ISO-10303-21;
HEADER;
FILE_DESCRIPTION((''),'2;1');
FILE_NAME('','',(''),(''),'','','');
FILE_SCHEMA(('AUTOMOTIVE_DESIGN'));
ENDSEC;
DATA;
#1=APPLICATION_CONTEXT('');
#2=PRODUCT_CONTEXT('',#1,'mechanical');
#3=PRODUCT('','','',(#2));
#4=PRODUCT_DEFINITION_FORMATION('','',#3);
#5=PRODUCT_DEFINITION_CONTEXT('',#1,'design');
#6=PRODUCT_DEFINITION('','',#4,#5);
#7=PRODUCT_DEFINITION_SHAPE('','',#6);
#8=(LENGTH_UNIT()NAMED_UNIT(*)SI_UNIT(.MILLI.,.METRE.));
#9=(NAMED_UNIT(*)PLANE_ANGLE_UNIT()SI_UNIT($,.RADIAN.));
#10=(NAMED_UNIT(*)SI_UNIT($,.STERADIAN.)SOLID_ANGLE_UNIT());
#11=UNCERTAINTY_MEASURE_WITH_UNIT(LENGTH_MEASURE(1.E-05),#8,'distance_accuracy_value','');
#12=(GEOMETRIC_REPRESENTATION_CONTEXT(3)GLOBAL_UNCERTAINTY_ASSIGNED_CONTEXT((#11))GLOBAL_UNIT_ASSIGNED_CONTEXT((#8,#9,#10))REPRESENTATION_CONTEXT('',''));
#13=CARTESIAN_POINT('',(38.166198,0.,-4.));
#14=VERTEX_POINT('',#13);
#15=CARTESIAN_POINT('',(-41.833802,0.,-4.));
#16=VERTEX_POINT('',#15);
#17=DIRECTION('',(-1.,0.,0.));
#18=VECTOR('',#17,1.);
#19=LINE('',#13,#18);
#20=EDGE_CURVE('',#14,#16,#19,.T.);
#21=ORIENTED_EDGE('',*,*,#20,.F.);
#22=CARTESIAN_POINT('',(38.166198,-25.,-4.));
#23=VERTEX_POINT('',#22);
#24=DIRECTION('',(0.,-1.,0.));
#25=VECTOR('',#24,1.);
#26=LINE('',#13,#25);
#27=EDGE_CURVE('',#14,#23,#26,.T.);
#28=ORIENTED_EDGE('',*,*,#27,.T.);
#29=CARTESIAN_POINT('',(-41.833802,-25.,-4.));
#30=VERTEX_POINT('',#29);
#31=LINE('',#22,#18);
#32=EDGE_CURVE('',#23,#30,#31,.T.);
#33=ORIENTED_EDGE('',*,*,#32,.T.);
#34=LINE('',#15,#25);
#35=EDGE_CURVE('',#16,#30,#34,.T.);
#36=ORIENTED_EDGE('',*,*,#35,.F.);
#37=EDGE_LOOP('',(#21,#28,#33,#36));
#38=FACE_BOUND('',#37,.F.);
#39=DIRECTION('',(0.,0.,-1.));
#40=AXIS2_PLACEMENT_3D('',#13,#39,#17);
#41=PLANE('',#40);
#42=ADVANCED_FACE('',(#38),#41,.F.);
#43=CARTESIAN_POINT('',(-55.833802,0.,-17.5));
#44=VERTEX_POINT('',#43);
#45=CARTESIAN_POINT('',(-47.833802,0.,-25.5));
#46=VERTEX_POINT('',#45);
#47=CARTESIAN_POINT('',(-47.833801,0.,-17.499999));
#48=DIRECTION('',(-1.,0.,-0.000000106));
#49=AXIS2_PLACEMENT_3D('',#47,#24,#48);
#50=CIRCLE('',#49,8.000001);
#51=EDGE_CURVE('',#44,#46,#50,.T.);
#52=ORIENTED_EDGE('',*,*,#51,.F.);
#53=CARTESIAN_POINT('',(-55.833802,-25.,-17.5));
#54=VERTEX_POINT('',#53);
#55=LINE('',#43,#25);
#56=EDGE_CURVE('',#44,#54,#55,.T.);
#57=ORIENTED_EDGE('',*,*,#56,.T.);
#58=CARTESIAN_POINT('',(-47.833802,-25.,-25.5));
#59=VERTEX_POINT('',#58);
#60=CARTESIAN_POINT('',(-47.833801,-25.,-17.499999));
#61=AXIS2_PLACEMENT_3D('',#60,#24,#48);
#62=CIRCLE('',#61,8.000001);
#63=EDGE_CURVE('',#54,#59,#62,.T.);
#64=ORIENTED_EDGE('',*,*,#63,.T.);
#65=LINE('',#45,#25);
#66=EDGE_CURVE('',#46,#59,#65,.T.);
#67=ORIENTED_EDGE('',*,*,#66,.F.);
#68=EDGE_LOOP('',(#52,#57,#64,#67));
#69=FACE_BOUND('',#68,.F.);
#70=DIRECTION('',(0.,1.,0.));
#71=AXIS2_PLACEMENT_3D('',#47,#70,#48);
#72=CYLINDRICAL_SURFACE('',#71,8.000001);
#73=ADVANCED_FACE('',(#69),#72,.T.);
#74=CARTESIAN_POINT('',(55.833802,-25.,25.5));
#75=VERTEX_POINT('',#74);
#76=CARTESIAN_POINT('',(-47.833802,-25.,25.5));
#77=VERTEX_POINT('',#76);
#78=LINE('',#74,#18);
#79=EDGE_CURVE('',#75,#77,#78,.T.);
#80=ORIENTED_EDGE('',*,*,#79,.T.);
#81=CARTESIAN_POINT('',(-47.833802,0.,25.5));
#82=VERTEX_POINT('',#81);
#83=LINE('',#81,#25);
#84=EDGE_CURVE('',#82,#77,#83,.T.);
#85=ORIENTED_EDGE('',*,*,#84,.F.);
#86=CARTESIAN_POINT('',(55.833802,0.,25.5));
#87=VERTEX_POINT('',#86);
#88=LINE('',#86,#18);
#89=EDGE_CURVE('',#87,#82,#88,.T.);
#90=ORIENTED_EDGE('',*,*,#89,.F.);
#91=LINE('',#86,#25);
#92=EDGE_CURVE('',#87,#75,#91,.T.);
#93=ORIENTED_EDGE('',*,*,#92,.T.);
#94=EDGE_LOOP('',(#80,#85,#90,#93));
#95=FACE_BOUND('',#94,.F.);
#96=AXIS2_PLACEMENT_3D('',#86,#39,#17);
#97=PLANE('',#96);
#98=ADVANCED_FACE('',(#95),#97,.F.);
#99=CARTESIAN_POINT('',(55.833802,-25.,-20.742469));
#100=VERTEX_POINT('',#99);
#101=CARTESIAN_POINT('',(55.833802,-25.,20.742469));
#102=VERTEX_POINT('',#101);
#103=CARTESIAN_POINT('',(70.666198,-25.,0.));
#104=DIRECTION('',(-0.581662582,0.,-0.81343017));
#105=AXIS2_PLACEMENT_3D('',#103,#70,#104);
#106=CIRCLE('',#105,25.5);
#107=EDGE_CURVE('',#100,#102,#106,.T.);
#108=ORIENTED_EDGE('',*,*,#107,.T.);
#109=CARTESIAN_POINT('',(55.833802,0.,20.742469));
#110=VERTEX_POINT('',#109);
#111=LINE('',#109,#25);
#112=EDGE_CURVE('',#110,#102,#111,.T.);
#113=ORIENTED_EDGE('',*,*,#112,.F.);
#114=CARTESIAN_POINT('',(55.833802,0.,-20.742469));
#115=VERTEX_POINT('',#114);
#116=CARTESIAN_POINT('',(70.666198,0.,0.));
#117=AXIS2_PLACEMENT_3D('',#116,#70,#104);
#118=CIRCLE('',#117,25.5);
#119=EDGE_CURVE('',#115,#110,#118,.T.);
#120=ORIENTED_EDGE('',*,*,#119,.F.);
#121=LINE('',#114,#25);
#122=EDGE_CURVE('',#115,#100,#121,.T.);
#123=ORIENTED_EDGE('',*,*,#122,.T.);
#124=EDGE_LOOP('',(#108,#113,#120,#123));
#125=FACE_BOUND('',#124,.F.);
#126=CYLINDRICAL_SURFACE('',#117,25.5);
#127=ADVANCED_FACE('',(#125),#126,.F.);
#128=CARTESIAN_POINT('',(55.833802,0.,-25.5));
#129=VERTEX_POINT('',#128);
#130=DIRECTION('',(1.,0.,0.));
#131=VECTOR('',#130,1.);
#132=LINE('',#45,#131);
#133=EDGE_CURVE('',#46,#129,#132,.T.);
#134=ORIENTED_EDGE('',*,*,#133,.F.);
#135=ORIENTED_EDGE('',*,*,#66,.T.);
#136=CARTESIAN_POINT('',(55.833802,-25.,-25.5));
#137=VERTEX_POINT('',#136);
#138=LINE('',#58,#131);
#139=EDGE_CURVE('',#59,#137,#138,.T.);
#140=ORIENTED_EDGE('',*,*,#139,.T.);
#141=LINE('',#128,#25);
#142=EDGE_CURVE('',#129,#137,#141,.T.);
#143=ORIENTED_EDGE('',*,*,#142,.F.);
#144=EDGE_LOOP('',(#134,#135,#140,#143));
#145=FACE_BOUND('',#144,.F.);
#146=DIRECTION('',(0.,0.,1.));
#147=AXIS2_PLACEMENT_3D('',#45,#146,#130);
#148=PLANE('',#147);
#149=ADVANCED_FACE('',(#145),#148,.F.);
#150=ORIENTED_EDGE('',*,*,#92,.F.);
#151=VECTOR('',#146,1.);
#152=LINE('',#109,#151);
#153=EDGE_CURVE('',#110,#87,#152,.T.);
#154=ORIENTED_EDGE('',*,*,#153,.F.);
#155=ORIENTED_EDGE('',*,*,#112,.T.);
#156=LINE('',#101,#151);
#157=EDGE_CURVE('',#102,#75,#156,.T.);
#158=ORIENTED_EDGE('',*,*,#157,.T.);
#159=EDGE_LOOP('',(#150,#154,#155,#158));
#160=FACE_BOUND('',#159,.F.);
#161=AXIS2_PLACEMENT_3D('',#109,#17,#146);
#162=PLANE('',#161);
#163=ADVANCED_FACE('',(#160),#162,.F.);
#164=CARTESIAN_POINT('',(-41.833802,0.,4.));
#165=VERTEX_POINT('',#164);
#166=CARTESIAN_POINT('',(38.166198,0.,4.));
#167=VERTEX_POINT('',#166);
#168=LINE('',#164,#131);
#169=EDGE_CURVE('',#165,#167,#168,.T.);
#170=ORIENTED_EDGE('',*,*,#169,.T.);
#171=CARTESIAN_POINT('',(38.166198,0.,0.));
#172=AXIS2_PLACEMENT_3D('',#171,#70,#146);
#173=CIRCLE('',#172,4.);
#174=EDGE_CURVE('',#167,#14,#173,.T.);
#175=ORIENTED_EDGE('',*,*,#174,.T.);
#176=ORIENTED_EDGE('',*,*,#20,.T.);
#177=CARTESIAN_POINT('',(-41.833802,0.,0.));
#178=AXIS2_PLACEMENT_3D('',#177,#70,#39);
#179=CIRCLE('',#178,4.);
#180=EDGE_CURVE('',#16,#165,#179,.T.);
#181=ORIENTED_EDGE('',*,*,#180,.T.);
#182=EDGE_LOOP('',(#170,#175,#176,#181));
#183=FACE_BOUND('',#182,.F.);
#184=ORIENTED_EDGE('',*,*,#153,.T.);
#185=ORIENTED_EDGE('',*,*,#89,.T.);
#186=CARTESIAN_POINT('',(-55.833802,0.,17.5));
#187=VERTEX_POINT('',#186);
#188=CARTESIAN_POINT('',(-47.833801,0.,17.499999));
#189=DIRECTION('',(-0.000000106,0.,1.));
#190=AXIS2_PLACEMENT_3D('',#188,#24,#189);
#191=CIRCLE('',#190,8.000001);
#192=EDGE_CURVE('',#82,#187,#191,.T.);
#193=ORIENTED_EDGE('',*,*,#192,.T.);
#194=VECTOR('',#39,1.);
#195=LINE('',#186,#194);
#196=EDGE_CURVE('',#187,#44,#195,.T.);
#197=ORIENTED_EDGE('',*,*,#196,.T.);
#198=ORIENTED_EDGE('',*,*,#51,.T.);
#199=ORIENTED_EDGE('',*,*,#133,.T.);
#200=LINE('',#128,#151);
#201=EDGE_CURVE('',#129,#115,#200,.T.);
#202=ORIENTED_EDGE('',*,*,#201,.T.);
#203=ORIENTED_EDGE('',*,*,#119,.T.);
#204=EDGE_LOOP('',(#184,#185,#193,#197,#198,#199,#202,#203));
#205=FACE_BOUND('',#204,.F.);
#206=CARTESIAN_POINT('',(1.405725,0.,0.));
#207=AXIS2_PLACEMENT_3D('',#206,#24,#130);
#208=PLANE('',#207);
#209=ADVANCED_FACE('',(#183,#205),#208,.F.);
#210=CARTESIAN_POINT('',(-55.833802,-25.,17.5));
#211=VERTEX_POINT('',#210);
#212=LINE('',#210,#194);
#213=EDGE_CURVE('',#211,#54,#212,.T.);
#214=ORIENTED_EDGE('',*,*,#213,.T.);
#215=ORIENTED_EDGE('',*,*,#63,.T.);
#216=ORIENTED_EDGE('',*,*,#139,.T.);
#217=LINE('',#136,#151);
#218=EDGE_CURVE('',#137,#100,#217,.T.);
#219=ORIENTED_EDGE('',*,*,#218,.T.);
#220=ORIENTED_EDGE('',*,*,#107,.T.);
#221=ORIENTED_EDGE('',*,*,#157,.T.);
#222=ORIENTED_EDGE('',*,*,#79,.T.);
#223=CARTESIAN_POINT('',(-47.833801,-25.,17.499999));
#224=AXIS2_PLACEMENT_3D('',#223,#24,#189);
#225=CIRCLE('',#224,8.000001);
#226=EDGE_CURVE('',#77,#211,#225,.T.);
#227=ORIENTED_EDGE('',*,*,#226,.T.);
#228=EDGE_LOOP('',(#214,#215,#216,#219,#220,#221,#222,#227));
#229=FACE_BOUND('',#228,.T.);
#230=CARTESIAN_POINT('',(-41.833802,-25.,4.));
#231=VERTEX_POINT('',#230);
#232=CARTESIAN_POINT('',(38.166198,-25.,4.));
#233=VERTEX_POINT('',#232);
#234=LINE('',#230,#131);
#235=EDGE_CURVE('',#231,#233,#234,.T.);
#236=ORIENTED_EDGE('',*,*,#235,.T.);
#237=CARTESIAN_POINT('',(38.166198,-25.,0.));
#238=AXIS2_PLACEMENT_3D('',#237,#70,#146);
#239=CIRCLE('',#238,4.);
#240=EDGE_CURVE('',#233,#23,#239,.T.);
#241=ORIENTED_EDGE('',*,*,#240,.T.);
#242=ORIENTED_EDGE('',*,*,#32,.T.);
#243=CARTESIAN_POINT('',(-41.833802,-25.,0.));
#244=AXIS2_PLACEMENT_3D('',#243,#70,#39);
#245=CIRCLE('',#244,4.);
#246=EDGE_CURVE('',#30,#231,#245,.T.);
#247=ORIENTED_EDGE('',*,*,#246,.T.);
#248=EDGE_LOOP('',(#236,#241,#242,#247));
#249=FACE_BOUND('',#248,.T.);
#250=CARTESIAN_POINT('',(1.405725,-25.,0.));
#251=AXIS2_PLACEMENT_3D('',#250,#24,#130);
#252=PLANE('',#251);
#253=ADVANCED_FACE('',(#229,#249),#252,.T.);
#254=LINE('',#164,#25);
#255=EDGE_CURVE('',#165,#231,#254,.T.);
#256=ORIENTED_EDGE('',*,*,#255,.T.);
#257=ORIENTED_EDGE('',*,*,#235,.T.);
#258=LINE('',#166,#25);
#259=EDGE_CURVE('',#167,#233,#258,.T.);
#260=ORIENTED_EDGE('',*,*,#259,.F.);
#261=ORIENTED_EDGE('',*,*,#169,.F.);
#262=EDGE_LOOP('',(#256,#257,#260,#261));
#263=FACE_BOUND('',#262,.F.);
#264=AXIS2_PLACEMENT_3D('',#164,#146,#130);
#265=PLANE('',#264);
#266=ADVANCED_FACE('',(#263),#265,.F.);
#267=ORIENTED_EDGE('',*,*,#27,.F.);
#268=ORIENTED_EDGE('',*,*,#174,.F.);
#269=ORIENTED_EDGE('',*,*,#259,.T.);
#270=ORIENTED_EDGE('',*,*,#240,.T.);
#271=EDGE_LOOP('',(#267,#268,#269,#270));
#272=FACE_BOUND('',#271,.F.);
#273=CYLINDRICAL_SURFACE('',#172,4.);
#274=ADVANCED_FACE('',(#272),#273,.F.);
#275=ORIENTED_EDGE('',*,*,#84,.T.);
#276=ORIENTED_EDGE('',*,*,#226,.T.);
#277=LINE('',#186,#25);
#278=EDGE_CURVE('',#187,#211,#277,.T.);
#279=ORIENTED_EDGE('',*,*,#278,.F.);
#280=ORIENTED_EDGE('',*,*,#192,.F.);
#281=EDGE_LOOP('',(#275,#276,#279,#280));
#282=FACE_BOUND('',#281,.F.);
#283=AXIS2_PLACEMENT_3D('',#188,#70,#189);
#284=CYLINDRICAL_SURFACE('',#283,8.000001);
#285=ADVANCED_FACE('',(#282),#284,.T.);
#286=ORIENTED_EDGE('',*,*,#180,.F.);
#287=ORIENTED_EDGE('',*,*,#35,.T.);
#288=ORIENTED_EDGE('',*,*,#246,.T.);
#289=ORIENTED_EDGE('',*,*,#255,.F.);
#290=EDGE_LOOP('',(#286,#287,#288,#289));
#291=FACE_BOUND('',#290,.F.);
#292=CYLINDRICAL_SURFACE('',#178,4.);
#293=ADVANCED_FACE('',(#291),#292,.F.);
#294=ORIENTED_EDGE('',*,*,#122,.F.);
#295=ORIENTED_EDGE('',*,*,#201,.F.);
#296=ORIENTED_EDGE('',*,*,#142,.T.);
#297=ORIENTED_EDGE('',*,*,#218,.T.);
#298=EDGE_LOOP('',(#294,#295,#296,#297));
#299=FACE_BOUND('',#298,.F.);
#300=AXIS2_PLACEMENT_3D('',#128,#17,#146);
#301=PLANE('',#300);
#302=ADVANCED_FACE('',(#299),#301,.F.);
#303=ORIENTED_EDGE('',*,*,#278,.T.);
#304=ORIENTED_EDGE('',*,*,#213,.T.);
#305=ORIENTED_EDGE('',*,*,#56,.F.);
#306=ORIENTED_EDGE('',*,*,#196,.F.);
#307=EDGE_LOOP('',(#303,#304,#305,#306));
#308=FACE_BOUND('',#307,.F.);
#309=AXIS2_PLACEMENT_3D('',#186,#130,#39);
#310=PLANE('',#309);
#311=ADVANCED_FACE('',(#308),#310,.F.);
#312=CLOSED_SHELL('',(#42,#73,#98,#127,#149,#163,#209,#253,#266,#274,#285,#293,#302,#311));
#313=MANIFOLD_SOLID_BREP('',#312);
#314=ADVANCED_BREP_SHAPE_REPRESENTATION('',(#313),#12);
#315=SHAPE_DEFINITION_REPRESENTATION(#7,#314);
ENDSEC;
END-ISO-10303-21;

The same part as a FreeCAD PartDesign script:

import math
import FreeCAD as App
import Part
import Sketcher

doc = App.newDocument("Part")
body = doc.addObject("PartDesign::Body", "Body")

sketch1 = body.newObject("Sketcher::SketchObject", "Sketch")
sketch1.AttachmentSupport = (doc.getObject("XZ_Plane"), [""])
sketch1.MapMode = "FlatFace"
sketch1.addGeometry(Part.LineSegment(App.Vector(55.8, 25.5, 0), App.Vector(-47.8, 25.5, 0)), False)
sketch1.addGeometry(Part.ArcOfCircle(Part.Circle(App.Vector(-47.8, 17.5, 0), App.Vector(0, 0, 1), 8), math.radians(90), math.radians(180)), False)
sketch1.addGeometry(Part.LineSegment(App.Vector(-55.8, 17.5, 0), App.Vector(-55.8, -17.5, 0)), False)
sketch1.addGeometry(Part.ArcOfCircle(Part.Circle(App.Vector(-47.8, -17.5, 0), App.Vector(0, 0, 1), 8), math.radians(-180), math.radians(-90)), False)
sketch1.addGeometry(Part.LineSegment(App.Vector(-47.8, -25.5, 0), App.Vector(55.8, -25.5, 0)), False)
sketch1.addGeometry(Part.LineSegment(App.Vector(55.8, -25.5, 0), App.Vector(55.8, -20.7, 0)), False)
sketch1.addGeometry(Part.ArcOfCircle(Part.Circle(App.Vector(70.7, 0, 0), App.Vector(0, 0, 1), 25.5), math.radians(126), math.radians(234)), False)
sketch1.addGeometry(Part.LineSegment(App.Vector(55.8, 20.7, 0), App.Vector(55.8, 25.5, 0)), False)
sketch1.addGeometry(Part.ArcOfCircle(Part.Circle(App.Vector(38.2, 0, 0), App.Vector(0, 0, 1), 4), math.radians(-90), math.radians(90)), False)
sketch1.addGeometry(Part.LineSegment(App.Vector(38.2, -4, 0), App.Vector(-41.8, -4, 0)), False)
sketch1.addGeometry(Part.ArcOfCircle(Part.Circle(App.Vector(-41.8, 0, 0), App.Vector(0, 0, 1), 4), math.radians(90), math.radians(270)), False)
sketch1.addGeometry(Part.LineSegment(App.Vector(-41.8, 4, 0), App.Vector(38.2, 4, 0)), False)
sketch1.addConstraint(Sketcher.Constraint("Tangent", 0, 2, 1, 1))
sketch1.addConstraint(Sketcher.Constraint("Tangent", 1, 2, 2, 1))
sketch1.addConstraint(Sketcher.Constraint("Tangent", 2, 2, 3, 1))
sketch1.addConstraint(Sketcher.Constraint("Tangent", 3, 2, 4, 1))
sketch1.addConstraint(Sketcher.Constraint("Coincident", 4, 2, 5, 1))
sketch1.addConstraint(Sketcher.Constraint("Coincident", 5, 2, 6, 2))
sketch1.addConstraint(Sketcher.Constraint("Coincident", 6, 1, 7, 1))
sketch1.addConstraint(Sketcher.Constraint("Coincident", 7, 2, 0, 1))
sketch1.addConstraint(Sketcher.Constraint("Tangent", 8, 1, 9, 1))
sketch1.addConstraint(Sketcher.Constraint("Tangent", 9, 2, 10, 2))
sketch1.addConstraint(Sketcher.Constraint("Tangent", 10, 1, 11, 1))
sketch1.addConstraint(Sketcher.Constraint("Tangent", 11, 2, 8, 2))
sketch1.addConstraint(Sketcher.Constraint("Horizontal", 0))
sketch1.addConstraint(Sketcher.Constraint("Vertical", 2))
sketch1.addConstraint(Sketcher.Constraint("Horizontal", 4))
sketch1.addConstraint(Sketcher.Constraint("Vertical", 5))
sketch1.addConstraint(Sketcher.Constraint("Vertical", 7))
sketch1.addConstraint(Sketcher.Constraint("Horizontal", 9))
sketch1.addConstraint(Sketcher.Constraint("Horizontal", 11))
sketch1.addConstraint(Sketcher.Constraint("Equal", 1, 3))
sketch1.addConstraint(Sketcher.Constraint("Symmetric", 5, 2, 6, 1, -1))
sketch1.addConstraint(Sketcher.Constraint("PointOnObject", 8, 3, -1))
sketch1.addConstraint(Sketcher.Constraint("Equal", 5, 7))
sketch1.addConstraint(Sketcher.Constraint("Radius", 1, 8.000001))
sketch1.addConstraint(Sketcher.Constraint("Radius", 8, 4.0))
sketch1.addConstraint(Sketcher.Constraint("Radius", 6, 25.5))
sketch1.addConstraint(Sketcher.Constraint("DistanceX", 9, 2, 9, 1, 80.0))
sketch1.addConstraint(Sketcher.Constraint("DistanceY", 2, 2, 2, 1, 35.0))
sketch1.addConstraint(Sketcher.Constraint("DistanceX", 1, 3, 8, 3, 85.999999))
sketch1.addConstraint(Sketcher.Constraint("DistanceX", 1, 3, 6, 3, 118.499999))
sketch1.addConstraint(Sketcher.Constraint("DistanceY", 5, 1, 5, 2, 4.757531))
sketch1.addConstraint(Sketcher.Constraint("DistanceX", 1, 3, -1, 1, 47.833801))
pad1 = body.newObject("PartDesign::Pad", "Pad")
pad1.Profile = sketch1
pad1.Length = 25

doc.recompute()
